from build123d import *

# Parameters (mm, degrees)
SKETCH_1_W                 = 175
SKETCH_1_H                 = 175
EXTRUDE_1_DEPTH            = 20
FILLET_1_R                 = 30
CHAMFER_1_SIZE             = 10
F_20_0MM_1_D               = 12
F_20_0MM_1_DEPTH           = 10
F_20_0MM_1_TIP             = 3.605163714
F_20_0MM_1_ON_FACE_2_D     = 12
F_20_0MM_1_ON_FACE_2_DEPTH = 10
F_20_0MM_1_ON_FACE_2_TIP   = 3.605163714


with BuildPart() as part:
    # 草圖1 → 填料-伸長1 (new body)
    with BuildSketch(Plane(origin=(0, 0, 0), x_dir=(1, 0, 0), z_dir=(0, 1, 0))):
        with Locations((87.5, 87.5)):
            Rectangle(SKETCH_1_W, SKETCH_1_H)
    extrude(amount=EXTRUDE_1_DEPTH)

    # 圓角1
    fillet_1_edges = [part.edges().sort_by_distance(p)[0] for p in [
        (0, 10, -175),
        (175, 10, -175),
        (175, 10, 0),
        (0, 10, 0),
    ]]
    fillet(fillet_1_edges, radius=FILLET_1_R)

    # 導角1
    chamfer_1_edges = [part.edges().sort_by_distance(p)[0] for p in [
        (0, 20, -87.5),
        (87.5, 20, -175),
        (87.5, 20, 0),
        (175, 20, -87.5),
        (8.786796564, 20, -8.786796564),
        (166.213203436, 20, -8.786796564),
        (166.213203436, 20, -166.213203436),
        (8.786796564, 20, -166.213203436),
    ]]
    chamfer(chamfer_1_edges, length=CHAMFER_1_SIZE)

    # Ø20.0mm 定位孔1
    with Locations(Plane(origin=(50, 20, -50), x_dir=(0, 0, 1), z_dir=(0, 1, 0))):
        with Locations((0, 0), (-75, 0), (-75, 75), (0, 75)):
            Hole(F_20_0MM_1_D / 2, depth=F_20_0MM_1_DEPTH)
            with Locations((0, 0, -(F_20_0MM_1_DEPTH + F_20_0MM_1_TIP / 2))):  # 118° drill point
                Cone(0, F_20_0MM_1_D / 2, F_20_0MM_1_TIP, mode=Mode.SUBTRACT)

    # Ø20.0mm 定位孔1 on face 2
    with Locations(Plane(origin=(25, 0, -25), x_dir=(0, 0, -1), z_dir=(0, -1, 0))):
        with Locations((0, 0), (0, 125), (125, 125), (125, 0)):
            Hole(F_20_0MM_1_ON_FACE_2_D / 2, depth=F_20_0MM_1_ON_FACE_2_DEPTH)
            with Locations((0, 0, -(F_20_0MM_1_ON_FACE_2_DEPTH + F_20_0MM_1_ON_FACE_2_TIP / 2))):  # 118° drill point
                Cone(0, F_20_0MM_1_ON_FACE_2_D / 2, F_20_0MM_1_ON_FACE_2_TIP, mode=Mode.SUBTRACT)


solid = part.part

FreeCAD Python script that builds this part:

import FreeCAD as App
import Part
import Sketcher
from FreeCAD import Vector


def edges_at(feature, points):
    """Names of the edges that pass closest to the given points."""
    edges = feature.Shape.Edges
    near = lambda p: min(range(len(edges)), key=lambda i: edges[i].distToShape(Part.Vertex(*p))[0])
    return sorted({f"Edge{near(p) + 1}" for p in points})

doc = App.newDocument("Part")
body = doc.addObject("PartDesign::Body", "Body")

sketch1 = body.newObject("Sketcher::SketchObject", "Sketch")
sketch1.AttachmentSupport = (doc.getObject("XZ_Plane"), [""])
sketch1.MapMode = "FlatFace"
sketch1.addGeometry(Part.LineSegment(Vector(0, -175, 0), Vector(0, 0, 0)), False)
sketch1.addGeometry(Part.LineSegment(Vector(0, 0, 0), Vector(175, 0, 0)), False)
sketch1.addGeometry(Part.LineSegment(Vector(175, 0, 0), Vector(175, -175, 0)), False)
sketch1.addGeometry(Part.LineSegment(Vector(175, -175, 0), Vector(0, -175, 0)), False)
sketch1.addConstraint(Sketcher.Constraint("Coincident", 0, 2, 1, 1))
sketch1.addConstraint(Sketcher.Constraint("Coincident", 1, 2, 2, 1))
sketch1.addConstraint(Sketcher.Constraint("Coincident", 2, 2, 3, 1))
sketch1.addConstraint(Sketcher.Constraint("Coincident", 3, 2, 0, 1))
sketch1.addConstraint(Sketcher.Constraint("Vertical", 0))
sketch1.addConstraint(Sketcher.Constraint("Horizontal", 1))
sketch1.addConstraint(Sketcher.Constraint("Vertical", 2))
sketch1.addConstraint(Sketcher.Constraint("Horizontal", 3))
sketch1.addConstraint(Sketcher.Constraint("Coincident", 0, 2, -1, 1))
sketch1.addConstraint(Sketcher.Constraint("Equal", 3, 0))
sketch1.addConstraint(Sketcher.Constraint("DistanceX", 1, 1, 1, 2, 175.0))
pad1 = body.newObject("PartDesign::Pad", "Pad")
pad1.Profile = sketch1
pad1.Length = 20
pad1.Reversed = True
doc.recompute()

fillet = body.newObject("PartDesign::Fillet", "Fillet")
fillet.Base = (pad1, edges_at(pad1, [
    (0, 10, -175),
    (175, 10, -175),
    (175, 10, 0),
    (0, 10, 0),
]))
fillet.Radius = 30
doc.recompute()

chamfer = body.newObject("PartDesign::Chamfer", "Chamfer")
chamfer.Base = (fillet, edges_at(fillet, [
    (0, 20, -87.5),
    (87.5, 20, -175),
    (87.5, 20, 0),
    (175, 20, -87.5),
    (8.787, 20, -8.787),
    (166.213, 20, -8.787),
    (166.213, 20, -166.213),
    (8.787, 20, -166.213),
]))
chamfer.Size = 10

sketch2 = body.newObject("Sketcher::SketchObject", "Sketch001")
sketch2.AttachmentSupport = (doc.getObject("XZ_Plane"), [""])
sketch2.MapMode = "FlatFace"
sketch2.AttachmentOffset = App.Placement(Vector(0, 0, -20), App.Rotation())
sketch2.addGeometry(Part.Circle(Vector(50, -50, 0), Vector(0, 0, 1), 6), False)
sketch2.addGeometry(Part.Circle(Vector(50, -125, 0), Vector(0, 0, 1), 6), False)
sketch2.addGeometry(Part.Circle(Vector(125, -125, 0), Vector(0, 0, 1), 6), False)
sketch2.addGeometry(Part.Circle(Vector(125, -50, 0), Vector(0, 0, 1), 6), False)
sketch2.addConstraint(Sketcher.Constraint("Equal", 0, 1))
sketch2.addConstraint(Sketcher.Constraint("Equal", 1, 2))
sketch2.addConstraint(Sketcher.Constraint("Equal", 2, 3))
sketch2.addConstraint(Sketcher.Constraint("Horizontal", 1, 3, 2, 3))
sketch2.addConstraint(Sketcher.Constraint("Horizontal", 0, 3, 3, 3))
sketch2.addConstraint(Sketcher.Constraint("Vertical", 0, 3, 1, 3))
sketch2.addConstraint(Sketcher.Constraint("Vertical", 2, 3, 3, 3))
sketch2.addConstraint(Sketcher.Constraint("Diameter", 0, 12.0))
sketch2.addConstraint(Sketcher.Constraint("DistanceX", -1, 1, 0, 3, 50.0))
sketch2.addConstraint(Sketcher.Constraint("DistanceY", 0, 3, -1, 1, 50.0))
sketch2.addConstraint(Sketcher.Constraint("DistanceY", 1, 3, -1, 1, 125.0))
sketch2.addConstraint(Sketcher.Constraint("DistanceX", -1, 1, 2, 3, 125.0))
doc.recompute()
hole = body.newObject("PartDesign::Hole", "Hole")
hole.Profile = sketch2
hole.ThreadType = "None"
hole.Diameter = 12
hole.DepthType = "Dimension"
hole.Depth = 10
hole.DrillPoint = "Angled"
hole.DrillPointAngle = 118
hole.Reversed = True

sketch3 = body.newObject("Sketcher::SketchObject", "Sketch002")
sketch3.AttachmentSupport = (doc.getObject("XZ_Plane"), [""])
sketch3.MapMode = "FlatFace"
sketch3.addGeometry(Part.Circle(Vector(25, -25, 0), Vector(0, 0, 1), 6), False)
sketch3.addGeometry(Part.Circle(Vector(150, -25, 0), Vector(0, 0, 1), 6), False)
sketch3.addGeometry(Part.Circle(Vector(150, -150, 0), Vector(0, 0, 1), 6), False)
sketch3.addGeometry(Part.Circle(Vector(25, -150, 0), Vector(0, 0, 1), 6), False)
sketch3.addConstraint(Sketcher.Constraint("Equal", 0, 1))
sketch3.addConstraint(Sketcher.Constraint("Equal", 1, 2))
sketch3.addConstraint(Sketcher.Constraint("Equal", 2, 3))
sketch3.addConstraint(Sketcher.Constraint("Horizontal", 0, 3, 1, 3))
sketch3.addConstraint(Sketcher.Constraint("Horizontal", 2, 3, 3, 3))
sketch3.addConstraint(Sketcher.Constraint("Vertical", 1, 3, 2, 3))
sketch3.addConstraint(Sketcher.Constraint("Vertical", 0, 3, 3, 3))
sketch3.addConstraint(Sketcher.Constraint("Diameter", 0, 12.0))
sketch3.addConstraint(Sketcher.Constraint("DistanceX", -1, 1, 0, 3, 25.0))
sketch3.addConstraint(Sketcher.Constraint("DistanceY", 0, 3, -1, 1, 25.0))
sketch3.addConstraint(Sketcher.Constraint("DistanceX", -1, 1, 1, 3, 150.0))
sketch3.addConstraint(Sketcher.Constraint("DistanceY", 2, 3, -1, 1, 150.0))
doc.recompute()
hole2 = body.newObject("PartDesign::Hole", "Hole001")
hole2.Profile = sketch3
hole2.ThreadType = "None"
hole2.Diameter = 12
hole2.DepthType = "Dimension"
hole2.Depth = 10
hole2.DrillPoint = "Angled"
hole2.DrillPointAngle = 118

doc.recompute()
